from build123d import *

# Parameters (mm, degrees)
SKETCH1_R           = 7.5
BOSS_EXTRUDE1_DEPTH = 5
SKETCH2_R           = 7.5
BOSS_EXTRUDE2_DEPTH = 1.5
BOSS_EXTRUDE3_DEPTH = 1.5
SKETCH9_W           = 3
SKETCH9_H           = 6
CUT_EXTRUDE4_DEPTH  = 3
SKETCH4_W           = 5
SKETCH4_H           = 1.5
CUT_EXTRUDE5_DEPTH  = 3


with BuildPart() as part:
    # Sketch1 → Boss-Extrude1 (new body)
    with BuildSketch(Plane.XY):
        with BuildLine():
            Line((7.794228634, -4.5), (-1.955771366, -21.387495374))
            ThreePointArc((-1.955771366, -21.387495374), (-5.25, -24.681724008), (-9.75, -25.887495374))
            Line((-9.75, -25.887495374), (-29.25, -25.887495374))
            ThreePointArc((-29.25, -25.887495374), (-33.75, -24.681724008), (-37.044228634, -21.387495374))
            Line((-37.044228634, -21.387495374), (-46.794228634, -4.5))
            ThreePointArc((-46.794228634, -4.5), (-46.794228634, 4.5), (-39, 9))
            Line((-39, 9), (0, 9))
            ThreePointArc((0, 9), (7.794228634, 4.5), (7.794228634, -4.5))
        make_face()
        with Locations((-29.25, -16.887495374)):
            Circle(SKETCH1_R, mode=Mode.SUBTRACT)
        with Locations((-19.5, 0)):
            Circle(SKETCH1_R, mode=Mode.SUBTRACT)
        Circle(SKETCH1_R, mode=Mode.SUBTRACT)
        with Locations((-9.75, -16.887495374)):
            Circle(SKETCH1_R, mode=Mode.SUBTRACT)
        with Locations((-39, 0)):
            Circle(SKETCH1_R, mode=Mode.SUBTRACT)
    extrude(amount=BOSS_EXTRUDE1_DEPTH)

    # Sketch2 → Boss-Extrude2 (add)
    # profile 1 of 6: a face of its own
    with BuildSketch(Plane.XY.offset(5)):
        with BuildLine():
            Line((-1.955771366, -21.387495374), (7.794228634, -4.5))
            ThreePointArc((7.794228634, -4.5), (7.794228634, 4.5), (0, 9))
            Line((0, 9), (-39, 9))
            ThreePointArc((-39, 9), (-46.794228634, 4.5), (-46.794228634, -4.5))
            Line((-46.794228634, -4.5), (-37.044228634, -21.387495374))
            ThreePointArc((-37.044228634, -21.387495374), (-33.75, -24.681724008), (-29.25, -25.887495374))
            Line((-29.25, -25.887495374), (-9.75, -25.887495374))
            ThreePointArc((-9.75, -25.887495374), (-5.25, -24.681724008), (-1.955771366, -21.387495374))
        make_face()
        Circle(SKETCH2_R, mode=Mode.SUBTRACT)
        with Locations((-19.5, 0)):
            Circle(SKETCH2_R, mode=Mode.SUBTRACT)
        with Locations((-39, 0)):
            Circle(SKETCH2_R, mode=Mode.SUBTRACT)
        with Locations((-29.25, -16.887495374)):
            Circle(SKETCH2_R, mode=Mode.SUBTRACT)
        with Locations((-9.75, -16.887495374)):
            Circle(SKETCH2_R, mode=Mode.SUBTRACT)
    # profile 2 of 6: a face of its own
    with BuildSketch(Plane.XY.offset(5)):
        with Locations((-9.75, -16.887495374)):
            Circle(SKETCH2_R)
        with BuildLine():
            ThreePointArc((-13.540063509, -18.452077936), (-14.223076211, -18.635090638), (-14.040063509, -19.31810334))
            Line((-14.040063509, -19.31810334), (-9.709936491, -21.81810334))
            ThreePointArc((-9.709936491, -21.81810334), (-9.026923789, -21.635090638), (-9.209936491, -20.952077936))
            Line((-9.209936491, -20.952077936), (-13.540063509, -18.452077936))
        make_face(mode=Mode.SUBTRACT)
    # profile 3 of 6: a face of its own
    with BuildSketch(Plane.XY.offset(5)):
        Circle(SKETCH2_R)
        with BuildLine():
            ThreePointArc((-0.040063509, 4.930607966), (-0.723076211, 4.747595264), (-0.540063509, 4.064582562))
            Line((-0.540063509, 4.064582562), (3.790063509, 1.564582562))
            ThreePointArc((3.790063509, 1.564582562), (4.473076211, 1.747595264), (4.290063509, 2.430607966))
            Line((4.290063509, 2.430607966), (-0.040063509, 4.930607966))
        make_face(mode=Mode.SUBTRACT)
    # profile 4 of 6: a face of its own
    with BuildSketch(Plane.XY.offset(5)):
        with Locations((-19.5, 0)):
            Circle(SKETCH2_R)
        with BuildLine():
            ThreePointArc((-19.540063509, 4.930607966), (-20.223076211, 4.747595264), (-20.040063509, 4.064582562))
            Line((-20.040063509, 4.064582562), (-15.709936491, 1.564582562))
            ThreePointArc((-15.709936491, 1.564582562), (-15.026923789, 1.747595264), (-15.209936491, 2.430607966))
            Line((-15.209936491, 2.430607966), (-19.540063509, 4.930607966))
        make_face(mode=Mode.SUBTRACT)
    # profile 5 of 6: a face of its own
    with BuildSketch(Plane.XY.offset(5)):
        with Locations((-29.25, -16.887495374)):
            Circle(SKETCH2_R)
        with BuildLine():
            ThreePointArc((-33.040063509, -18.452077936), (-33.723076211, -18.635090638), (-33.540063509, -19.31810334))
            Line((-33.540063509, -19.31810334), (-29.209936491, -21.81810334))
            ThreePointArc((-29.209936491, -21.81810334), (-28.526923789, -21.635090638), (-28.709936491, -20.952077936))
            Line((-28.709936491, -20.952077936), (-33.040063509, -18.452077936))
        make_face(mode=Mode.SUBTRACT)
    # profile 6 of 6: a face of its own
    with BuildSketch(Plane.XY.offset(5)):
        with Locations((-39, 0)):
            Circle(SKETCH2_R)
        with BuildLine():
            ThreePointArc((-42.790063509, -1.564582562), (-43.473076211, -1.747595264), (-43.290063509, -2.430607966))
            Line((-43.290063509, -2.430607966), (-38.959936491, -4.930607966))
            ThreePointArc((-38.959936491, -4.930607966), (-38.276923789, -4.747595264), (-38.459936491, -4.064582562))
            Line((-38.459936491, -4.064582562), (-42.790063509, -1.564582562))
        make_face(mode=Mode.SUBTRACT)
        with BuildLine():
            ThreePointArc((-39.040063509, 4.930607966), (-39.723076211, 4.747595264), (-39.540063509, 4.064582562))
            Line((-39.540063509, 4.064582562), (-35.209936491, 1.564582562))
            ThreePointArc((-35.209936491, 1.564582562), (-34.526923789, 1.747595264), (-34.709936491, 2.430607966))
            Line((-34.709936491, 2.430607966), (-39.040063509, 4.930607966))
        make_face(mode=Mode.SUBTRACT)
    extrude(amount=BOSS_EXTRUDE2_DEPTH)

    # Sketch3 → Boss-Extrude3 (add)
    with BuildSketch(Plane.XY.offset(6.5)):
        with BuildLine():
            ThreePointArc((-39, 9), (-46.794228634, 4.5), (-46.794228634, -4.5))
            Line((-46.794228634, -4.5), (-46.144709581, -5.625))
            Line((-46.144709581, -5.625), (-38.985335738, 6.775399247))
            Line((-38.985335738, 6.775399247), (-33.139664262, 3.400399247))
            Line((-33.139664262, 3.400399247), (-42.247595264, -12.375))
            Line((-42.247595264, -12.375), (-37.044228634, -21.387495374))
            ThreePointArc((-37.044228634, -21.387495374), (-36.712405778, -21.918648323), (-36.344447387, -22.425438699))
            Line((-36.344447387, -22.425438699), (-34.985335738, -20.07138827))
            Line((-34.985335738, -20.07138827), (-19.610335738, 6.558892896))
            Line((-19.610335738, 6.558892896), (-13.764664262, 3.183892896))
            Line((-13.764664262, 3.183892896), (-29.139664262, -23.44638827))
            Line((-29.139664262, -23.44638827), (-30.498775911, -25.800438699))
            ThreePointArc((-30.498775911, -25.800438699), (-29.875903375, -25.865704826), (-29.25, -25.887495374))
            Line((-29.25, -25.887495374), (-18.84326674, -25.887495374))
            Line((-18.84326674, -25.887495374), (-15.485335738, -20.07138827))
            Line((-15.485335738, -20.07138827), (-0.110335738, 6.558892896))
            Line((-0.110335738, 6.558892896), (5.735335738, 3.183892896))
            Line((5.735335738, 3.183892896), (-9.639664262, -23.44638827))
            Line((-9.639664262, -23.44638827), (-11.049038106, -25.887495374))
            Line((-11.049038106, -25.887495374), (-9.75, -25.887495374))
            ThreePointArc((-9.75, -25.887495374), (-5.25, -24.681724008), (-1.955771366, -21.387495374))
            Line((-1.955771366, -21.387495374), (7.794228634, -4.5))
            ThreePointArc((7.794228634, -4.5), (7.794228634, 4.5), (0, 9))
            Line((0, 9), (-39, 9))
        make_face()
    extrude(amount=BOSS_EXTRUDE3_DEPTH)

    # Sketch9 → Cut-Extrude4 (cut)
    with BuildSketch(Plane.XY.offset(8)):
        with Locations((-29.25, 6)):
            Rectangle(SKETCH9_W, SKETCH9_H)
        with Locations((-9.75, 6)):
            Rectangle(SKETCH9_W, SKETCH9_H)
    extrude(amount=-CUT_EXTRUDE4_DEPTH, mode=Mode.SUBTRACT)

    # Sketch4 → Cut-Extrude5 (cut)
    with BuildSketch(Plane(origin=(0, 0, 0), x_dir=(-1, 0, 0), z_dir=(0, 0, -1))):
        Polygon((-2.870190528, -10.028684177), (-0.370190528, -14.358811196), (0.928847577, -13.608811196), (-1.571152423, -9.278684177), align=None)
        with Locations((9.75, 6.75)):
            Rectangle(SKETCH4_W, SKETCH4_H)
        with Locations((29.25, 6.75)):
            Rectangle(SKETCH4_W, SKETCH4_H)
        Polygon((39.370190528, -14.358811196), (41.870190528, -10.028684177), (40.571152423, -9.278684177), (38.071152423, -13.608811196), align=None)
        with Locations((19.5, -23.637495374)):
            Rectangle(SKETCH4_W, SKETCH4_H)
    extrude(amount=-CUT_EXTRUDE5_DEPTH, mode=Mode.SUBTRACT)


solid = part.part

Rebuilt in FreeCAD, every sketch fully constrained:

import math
import FreeCAD as App
import Part
import Sketcher
Q = App.Units.Quantity

doc = App.newDocument("Part")
body = doc.addObject("PartDesign::Body", "Body")

sketch1 = doc.addObject("Sketcher::SketchObject", "Sketch")
body.addObject(sketch1)
sketch1.AttachmentSupport = (doc.XY_Plane, [""])
sketch1.MapMode = "FlatFace"
sketch1.addGeometry(Part.LineSegment(App.Vector(-2, -21, 0), App.Vector(8, -4, 0)), False)
sketch1.addGeometry(Part.ArcOfCircle(Part.Circle(App.Vector(0, 0, 0), App.Vector(0, 0, 1), 9), math.radians(-30), math.radians(90)), False)
sketch1.addGeometry(Part.LineSegment(App.Vector(0, 9, 0), App.Vector(-39, 9, 0)), False)
sketch1.addGeometry(Part.ArcOfCircle(Part.Circle(App.Vector(-39, 0, 0), App.Vector(0, 0, 1), 9), math.radians(90), math.radians(210)), False)
sketch1.addGeometry(Part.LineSegment(App.Vector(-47, -4, 0), App.Vector(-37, -21, 0)), False)
sketch1.addGeometry(Part.ArcOfCircle(Part.Circle(App.Vector(-29, -17, 0), App.Vector(0, 0, 1), 9), math.radians(-150), math.radians(-90)), False)
sketch1.addGeometry(Part.LineSegment(App.Vector(-29, -26, 0), App.Vector(-10, -26, 0)), False)
sketch1.addGeometry(Part.ArcOfCircle(Part.Circle(App.Vector(-10, -17, 0), App.Vector(0, 0, 1), 9), math.radians(-90), math.radians(-30)), False)
sketch1.addGeometry(Part.Circle(App.Vector(-10, -17, 0), App.Vector(0, 0, 1), 8), False)
sketch1.addGeometry(Part.Circle(App.Vector(-29, -17, 0), App.Vector(0, 0, 1), 8), False)
sketch1.addGeometry(Part.Circle(App.Vector(0, 0, 0), App.Vector(0, 0, 1), 8), False)
sketch1.addGeometry(Part.Circle(App.Vector(-20, 0, 0), App.Vector(0, 0, 1), 8), False)
sketch1.addGeometry(Part.Circle(App.Vector(-39, 0, 0), App.Vector(0, 0, 1), 8), False)
sketch1.addConstraint(Sketcher.Constraint("Tangent", 0, 2, 1, 1))
sketch1.addConstraint(Sketcher.Constraint("Tangent", 1, 2, 2, 1))
sketch1.addConstraint(Sketcher.Constraint("Tangent", 2, 2, 3, 1))
sketch1.addConstraint(Sketcher.Constraint("Tangent", 3, 2, 4, 1))
sketch1.addConstraint(Sketcher.Constraint("Tangent", 4, 2, 5, 1))
sketch1.addConstraint(Sketcher.Constraint("Tangent", 5, 2, 6, 1))
sketch1.addConstraint(Sketcher.Constraint("Tangent", 6, 2, 7, 1))
sketch1.addConstraint(Sketcher.Constraint("Tangent", 7, 2, 0, 1))
sketch1.addConstraint(Sketcher.Constraint("Horizontal", 2))
sketch1.addConstraint(Sketcher.Constraint("Horizontal", 6))
sketch1.addConstraint(Sketcher.Constraint("Coincident", 1, 3, -1, 1))
sketch1.addConstraint(Sketcher.Constraint("Coincident", 10, 3, -1, 1))
sketch1.addConstraint(Sketcher.Constraint("Coincident", 8, 3, 7, 3))
sketch1.addConstraint(Sketcher.Constraint("Coincident", 9, 3, 5, 3))
sketch1.addConstraint(Sketcher.Constraint("Coincident", 12, 3, 3, 3))
sketch1.addConstraint(Sketcher.Constraint("Equal", 1, 3))
sketch1.addConstraint(Sketcher.Constraint("Equal", 3, 5))
sketch1.addConstraint(Sketcher.Constraint("Equal", 5, 7))
sketch1.addConstraint(Sketcher.Constraint("Equal", 8, 9))
sketch1.addConstraint(Sketcher.Constraint("Equal", 9, 10))
sketch1.addConstraint(Sketcher.Constraint("Equal", 10, 11))
sketch1.addConstraint(Sketcher.Constraint("Equal", 11, 12))
sketch1.addConstraint(Sketcher.Constraint("PointOnObject", 11, 3, -1))
sketch1.addConstraint(Sketcher.Constraint("Horizontal", 0, 2, 3, 2))
sketch1.addConstraint(Sketcher.Constraint("Diameter", 8, Q("15 mm")))
sketch1.addConstraint(Sketcher.Constraint("Radius", 1, Q("9 mm")))
sketch1.addConstraint(Sketcher.Constraint("DistanceX", 2, 2, 2, 1, Q("39 mm")))
sketch1.addConstraint(Sketcher.Constraint("Angle", 0, Q("60 deg")))
sketch1.addConstraint(Sketcher.Constraint("DistanceX", 6, 1, 6, 2, Q("19.5 mm")))
sketch1.addConstraint(Sketcher.Constraint("DistanceX", 11, 3, -1, 1, Q("19.5 mm")))
pad1 = doc.addObject("PartDesign::Pad", "Pad")
body.addObject(pad1)
pad1.Profile = sketch1
pad1.Length = 5

sketch2 = doc.addObject("Sketcher::SketchObject", "Sketch001")
body.addObject(sketch2)
sketch2.AttachmentSupport = (doc.XY_Plane, [""])
sketch2.MapMode = "FlatFace"
sketch2.AttachmentOffset = App.Placement(App.Vector(0, 0, 5), App.Rotation())
sketch2.addGeometry(Part.LineSegment(App.Vector(-2, -21.4, 0), App.Vector(7.8, -4.5, 0)), False)
sketch2.addGeometry(Part.ArcOfCircle(Part.Circle(App.Vector(0, 0, 0), App.Vector(0, 0, 1), 9), math.radians(-30), math.radians(90)), False)
sketch2.addGeometry(Part.LineSegment(App.Vector(0, 9, 0), App.Vector(-39, 9, 0)), False)
sketch2.addGeometry(Part.ArcOfCircle(Part.Circle(App.Vector(-39, 0, 0), App.Vector(0, 0, 1), 9), math.radians(90), math.radians(210)), False)
sketch2.addGeometry(Part.LineSegment(App.Vector(-46.8, -4.5, 0), App.Vector(-37, -21.4, 0)), False)
sketch2.addGeometry(Part.ArcOfCircle(Part.Circle(App.Vector(-29.2, -16.9, 0), App.Vector(0, 0, 1), 9), math.radians(-150), math.radians(-90)), False)
sketch2.addGeometry(Part.LineSegment(App.Vector(-29.2, -25.9, 0), App.Vector(-9.8, -25.9, 0)), False)
sketch2.addGeometry(Part.ArcOfCircle(Part.Circle(App.Vector(-9.8, -16.9, 0), App.Vector(0, 0, 1), 9), math.radians(-90), math.radians(-30)), False)
sketch2.addGeometry(Part.LineSegment(App.Vector(-33, -18.5, 0), App.Vector(-28.7, -21, 0)), False)
sketch2.addGeometry(Part.ArcOfCircle(Part.Circle(App.Vector(-29, -21.4, 0), App.Vector(0, 0, 1), 0.5), math.radians(-120), math.radians(60)), False)
sketch2.addGeometry(Part.LineSegment(App.Vector(-29.2, -21.8, 0), App.Vector(-33.5, -19.3, 0)), False)
sketch2.addGeometry(Part.ArcOfCircle(Part.Circle(App.Vector(-33.3, -18.9, 0), App.Vector(0, 0, 1), 0.5), math.radians(60), math.radians(240)), False)
sketch2.addGeometry(Part.LineSegment(App.Vector(-13.5, -18.5, 0), App.Vector(-9.2, -21, 0)), False)
sketch2.addGeometry(Part.ArcOfCircle(Part.Circle(App.Vector(-9.5, -21.4, 0), App.Vector(0, 0, 1), 0.5), math.radians(-120), math.radians(60)), False)
sketch2.addGeometry(Part.LineSegment(App.Vector(-9.7, -21.8, 0), App.Vector(-14, -19.3, 0)), False)
sketch2.addGeometry(Part.ArcOfCircle(Part.Circle(App.Vector(-13.8, -18.9, 0), App.Vector(0, 0, 1), 0.5), math.radians(60), math.radians(240)), False)
sketch2.addGeometry(Part.LineSegment(App.Vector(-39, 4.9, 0), App.Vector(-34.7, 2.4, 0)), False)
sketch2.addGeometry(Part.ArcOfCircle(Part.Circle(App.Vector(-35, 2, 0), App.Vector(0, 0, 1), 0.5), math.radians(-120), math.radians(60)), False)
sketch2.addGeometry(Part.LineSegment(App.Vector(-35.2, 1.6, 0), App.Vector(-39.5, 4.1, 0)), False)
sketch2.addGeometry(Part.ArcOfCircle(Part.Circle(App.Vector(-39.3, 4.5, 0), App.Vector(0, 0, 1), 0.5), math.radians(60), math.radians(240)), False)
sketch2.addGeometry(Part.ArcOfCircle(Part.Circle(App.Vector(-43, -2, 0), App.Vector(0, 0, 1), 0.5), math.radians(60), math.radians(240)), False)
sketch2.addGeometry(Part.LineSegment(App.Vector(-42.8, -1.6, 0), App.Vector(-38.5, -4.1, 0)), False)
sketch2.addGeometry(Part.ArcOfCircle(Part.Circle(App.Vector(-38.7, -4.5, 0), App.Vector(0, 0, 1), 0.5), math.radians(-120), math.radians(60)), False)
sketch2.addGeometry(Part.LineSegment(App.Vector(-39, -4.9, 0), App.Vector(-43.3, -2.4, 0)), False)
sketch2.addGeometry(Part.LineSegment(App.Vector(-19.5, 4.9, 0), App.Vector(-15.2, 2.4, 0)), False)
sketch2.addGeometry(Part.ArcOfCircle(Part.Circle(App.Vector(-15.5, 2, 0), App.Vector(0, 0, 1), 0.5), math.radians(-120), math.radians(60)), False)
sketch2.addGeometry(Part.LineSegment(App.Vector(-15.7, 1.6, 0), App.Vector(-20, 4.1, 0)), False)
sketch2.addGeometry(Part.ArcOfCircle(Part.Circle(App.Vector(-19.8, 4.5, 0), App.Vector(0, 0, 1), 0.5), math.radians(60), math.radians(240)), False)
sketch2.addGeometry(Part.LineSegment(App.Vector(0, 4.9, 0), App.Vector(4.3, 2.4, 0)), False)
sketch2.addGeometry(Part.ArcOfCircle(Part.Circle(App.Vector(4, 2, 0), App.Vector(0, 0, 1), 0.5), math.radians(-120), math.radians(60)), False)
sketch2.addGeometry(Part.LineSegment(App.Vector(3.8, 1.6, 0), App.Vector(-0.5, 4.1, 0)), False)
sketch2.addGeometry(Part.ArcOfCircle(Part.Circle(App.Vector(-0.3, 4.5, 0), App.Vector(0, 0, 1), 0.5), math.radians(60), math.radians(240)), False)
sketch2.addConstraint(Sketcher.Constraint("Tangent", 0, 2, 1, 1))
sketch2.addConstraint(Sketcher.Constraint("Tangent", 1, 2, 2, 1))
sketch2.addConstraint(Sketcher.Constraint("Tangent", 2, 2, 3, 1))
sketch2.addConstraint(Sketcher.Constraint("Tangent", 3, 2, 4, 1))
sketch2.addConstraint(Sketcher.Constraint("Tangent", 4, 2, 5, 1))
sketch2.addConstraint(Sketcher.Constraint("Tangent", 5, 2, 6, 1))
sketch2.addConstraint(Sketcher.Constraint("Tangent", 6, 2, 7, 1))
sketch2.addConstraint(Sketcher.Constraint("Tangent", 7, 2, 0, 1))
sketch2.addConstraint(Sketcher.Constraint("Tangent", 8, 2, 9, 2))
sketch2.addConstraint(Sketcher.Constraint("Tangent", 9, 1, 10, 1))
sketch2.addConstraint(Sketcher.Constraint("Tangent", 10, 2, 11, 2))
sketch2.addConstraint(Sketcher.Constraint("Tangent", 11, 1, 8, 1))
sketch2.addConstraint(Sketcher.Constraint("Tangent", 12, 2, 13, 2))
sketch2.addConstraint(Sketcher.Constraint("Tangent", 13, 1, 14, 1))
sketch2.addConstraint(Sketcher.Constraint("Tangent", 14, 2, 15, 2))
sketch2.addConstraint(Sketcher.Constraint("Tangent", 15, 1, 12, 1))
sketch2.addConstraint(Sketcher.Constraint("Tangent", 16, 2, 17, 2))
sketch2.addConstraint(Sketcher.Constraint("Tangent", 17, 1, 18, 1))
sketch2.addConstraint(Sketcher.Constraint("Tangent", 18, 2, 19, 2))
sketch2.addConstraint(Sketcher.Constraint("Tangent", 19, 1, 16, 1))
sketch2.addConstraint(Sketcher.Constraint("Tangent", 20, 1, 21, 1))
sketch2.addConstraint(Sketcher.Constraint("Tangent", 21, 2, 22, 2))
sketch2.addConstraint(Sketcher.Constraint("Tangent", 22, 1, 23, 1))
sketch2.addConstraint(Sketcher.Constraint("Tangent", 23, 2, 20, 2))
sketch2.addConstraint(Sketcher.Constraint("Tangent", 24, 2, 25, 2))
sketch2.addConstraint(Sketcher.Constraint("Tangent", 25, 1, 26, 1))
sketch2.addConstraint(Sketcher.Constraint("Tangent", 26, 2, 27, 2))
sketch2.addConstraint(Sketcher.Constraint("Tangent", 27, 1, 24, 1))
sketch2.addConstraint(Sketcher.Constraint("Tangent", 28, 2, 29, 2))
sketch2.addConstraint(Sketcher.Constraint("Tangent", 29, 1, 30, 1))
sketch2.addConstraint(Sketcher.Constraint("Tangent", 30, 2, 31, 2))
sketch2.addConstraint(Sketcher.Constraint("Tangent", 31, 1, 28, 1))
sketch2.addConstraint(Sketcher.Constraint("Horizontal", 2))
sketch2.addConstraint(Sketcher.Constraint("Horizontal", 6))
sketch2.addConstraint(Sketcher.Constraint("Coincident", 1, 3, -1, 1))
sketch2.addConstraint(Sketcher.Constraint("Equal", 1, 3))
sketch2.addConstraint(Sketcher.Constraint("Equal", 3, 5))
sketch2.addConstraint(Sketcher.Constraint("Equal", 5, 7))
sketch2.addConstraint(Sketcher.Constraint("Equal", 9, 11))
sketch2.addConstraint(Sketcher.Constraint("Equal", 11, 13))
sketch2.addConstraint(Sketcher.Constraint("Equal", 13, 15))
sketch2.addConstraint(Sketcher.Constraint("Equal", 15, 17))
sketch2.addConstraint(Sketcher.Constraint("Equal", 17, 19))
sketch2.addConstraint(Sketcher.Constraint("Equal", 19, 20))
sketch2.addConstraint(Sketcher.Constraint("Equal", 20, 22))
sketch2.addConstraint(Sketcher.Constraint("Equal", 22, 25))
sketch2.addConstraint(Sketcher.Constraint("Equal", 25, 27))
sketch2.addConstraint(Sketcher.Constraint("Equal", 27, 29))
sketch2.addConstraint(Sketcher.Constraint("Equal", 29, 31))
sketch2.addConstraint(Sketcher.Constraint("Perpendicular", 0, 8))
sketch2.addConstraint(Sketcher.Constraint("Parallel", 10, 12))
sketch2.addConstraint(Sketcher.Constraint("Parallel", 14, 16))
sketch2.addConstraint(Sketcher.Constraint("Parallel", 18, 21))
sketch2.addConstraint(Sketcher.Constraint("Parallel", 23, 24))
sketch2.addConstraint(Sketcher.Constraint("Parallel", 26, 28))
sketch2.addConstraint(Sketcher.Constraint("Horizontal", 9, 3, 13, 3))
sketch2.addConstraint(Sketcher.Constraint("Horizontal", 11, 3, 15, 3))
sketch2.addConstraint(Sketcher.Constraint("Horizontal", 17, 3, 25, 3))
sketch2.addConstraint(Sketcher.Constraint("Horizontal", 19, 3, 27, 3))
sketch2.addConstraint(Sketcher.Constraint("Horizontal", 25, 3, 29, 3))
sketch2.addConstraint(Sketcher.Constraint("Horizontal", 27, 3, 31, 3))
sketch2.addConstraint(Sketcher.Constraint("Horizontal", 0, 2, 3, 2))
sketch2.addConstraint(Sketcher.Constraint("Equal", 14, 16))
sketch2.addConstraint(Sketcher.Constraint("Equal", 18, 21))
sketch2.addConstraint(Sketcher.Constraint("Radius", 1, Q("9 mm")))
sketch2.addConstraint(Sketcher.Constraint("Radius", 9, Q("0.5 mm")))
sketch2.addConstraint(Sketcher.Constraint("DistanceX", 2, 2, 2, 1, Q("39 mm")))
sketch2.addConstraint(Sketcher.Constraint("Angle", 0, Q("60 deg")))
sketch2.addConstraint(Sketcher.Constraint("Distance", 8, Q("5 mm")))
sketch2.addConstraint(Sketcher.Constraint("DistanceX", 6, 1, 6, 2, Q("19.5 mm")))
sketch2.addConstraint(Sketcher.Constraint("DistanceX", 17, 3, 9, 3, Q("6 mm")))
sketch2.addConstraint(Sketcher.Constraint("DistanceX", 22, 3, 16, 2, Q("4 mm")))
sketch2.addConstraint(Sketcher.Constraint("DistanceX", 9, 3, 13, 3, Q("19.5 mm")))
sketch2.addConstraint(Sketcher.Constraint("DistanceX", 17, 3, 25, 3, Q("19.5 mm")))
sketch2.addConstraint(Sketcher.Constraint("DistanceX", 25, 3, 29, 3, Q("19.5 mm")))
sketch2.addConstraint(Sketcher.Constraint("DistanceY", 5, 3, 20, 3, Q("14.8899 mm")))
sketch2.addConstraint(Sketcher.Constraint("DistanceY", 9, 3, -1, 1, Q("21.385091 mm")))
sketch2.addConstraint(Sketcher.Constraint("DistanceY", 5, 3, 17, 3, Q("18.885091 mm")))
sketch2.addConstraint(Sketcher.Constraint("DistanceX", 9, 3, -1, 1, Q("28.959936 mm")))
pad2 = doc.addObject("PartDesign::Pad", "Pad001")
body.addObject(pad2)
pad2.Profile = sketch2
pad2.Length = 1.5

sketch3 = doc.addObject("Sketcher::SketchObject", "Sketch002")
body.addObject(sketch3)
sketch3.AttachmentSupport = (doc.XY_Plane, [""])
sketch3.MapMode = "FlatFace"
sketch3.AttachmentOffset = App.Placement(App.Vector(0, 0, 6.5), App.Rotation())
sketch3.addGeometry(Part.ArcOfCircle(Part.Circle(App.Vector(-39, 0, 0), App.Vector(0, 0, 1), 9), math.radians(90), math.radians(210)), False)
sketch3.addGeometry(Part.LineSegment(App.Vector(-46.8, -4.5, 0), App.Vector(-46.1, -5.6, 0)), False)
sketch3.addGeometry(Part.LineSegment(App.Vector(-46.1, -5.6, 0), App.Vector(-39, 6.8, 0)), False)
sketch3.addGeometry(Part.LineSegment(App.Vector(-39, 6.8, 0), App.Vector(-33.1, 3.4, 0)), False)
sketch3.addGeometry(Part.LineSegment(App.Vector(-33.1, 3.4, 0), App.Vector(-42.2, -12.4, 0)), False)
sketch3.addGeometry(Part.LineSegment(App.Vector(-42.2, -12.4, 0), App.Vector(-37, -21.4, 0)), False)
sketch3.addGeometry(Part.ArcOfCircle(Part.Circle(App.Vector(-29.2, -16.9, 0), App.Vector(0, 0, 1), 9), math.radians(-150), math.radians(-142.02)), False)
sketch3.addGeometry(Part.LineSegment(App.Vector(-36.3, -22.4, 0), App.Vector(-35, -20.1, 0)), False)
sketch3.addGeometry(Part.LineSegment(App.Vector(-35, -20.1, 0), App.Vector(-19.6, 6.6, 0)), False)
sketch3.addGeometry(Part.LineSegment(App.Vector(-19.6, 6.6, 0), App.Vector(-13.8, 3.2, 0)), False)
sketch3.addGeometry(Part.LineSegment(App.Vector(-13.8, 3.2, 0), App.Vector(-29.1, -23.4, 0)), False)
sketch3.addGeometry(Part.LineSegment(App.Vector(-29.1, -23.4, 0), App.Vector(-30.5, -25.8, 0)), False)
sketch3.addGeometry(Part.ArcOfCircle(Part.Circle(App.Vector(-29.3, -16.9, 0), App.Vector(0, 0, 1), 9), math.radians(-97.98), math.radians(-90)), False)
sketch3.addGeometry(Part.LineSegment(App.Vector(-29.2, -25.9, 0), App.Vector(-18.8, -25.9, 0)), False)
sketch3.addGeometry(Part.LineSegment(App.Vector(-18.8, -25.9, 0), App.Vector(-15.5, -20.1, 0)), False)
sketch3.addGeometry(Part.LineSegment(App.Vector(-15.5, -20.1, 0), App.Vector(-0.1, 6.6, 0)), False)
sketch3.addGeometry(Part.LineSegment(App.Vector(-0.1, 6.6, 0), App.Vector(5.7, 3.2, 0)), False)
sketch3.addGeometry(Part.LineSegment(App.Vector(5.7, 3.2, 0), App.Vector(-9.6, -23.4, 0)), False)
sketch3.addGeometry(Part.LineSegment(App.Vector(-9.6, -23.4, 0), App.Vector(-11, -25.9, 0)), False)
sketch3.addGeometry(Part.LineSegment(App.Vector(-11, -25.9, 0), App.Vector(-9.8, -25.9, 0)), False)
sketch3.addGeometry(Part.ArcOfCircle(Part.Circle(App.Vector(-9.8, -16.9, 0), App.Vector(0, 0, 1), 9), math.radians(-90), math.radians(-30)), False)
sketch3.addGeometry(Part.LineSegment(App.Vector(-2, -21.4, 0), App.Vector(7.8, -4.5, 0)), False)
sketch3.addGeometry(Part.ArcOfCircle(Part.Circle(App.Vector(0, 0, 0), App.Vector(0, 0, 1), 9), math.radians(-30), math.radians(90)), False)
sketch3.addGeometry(Part.LineSegment(App.Vector(0, 9, 0), App.Vector(-39, 9, 0)), False)
sketch3.addConstraint(Sketcher.Constraint("Tangent", 0, 2, 1, 1))
sketch3.addConstraint(Sketcher.Constraint("Coincident", 1, 2, 2, 1))
sketch3.addConstraint(Sketcher.Constraint("Coincident", 2, 2, 3, 1))
sketch3.addConstraint(Sketcher.Constraint("Coincident", 3, 2, 4, 1))
sketch3.addConstraint(Sketcher.Constraint("Coincident", 4, 2, 5, 1))
sketch3.addConstraint(Sketcher.Constraint("Tangent", 5, 2, 6, 1))
sketch3.addConstraint(Sketcher.Constraint("Coincident", 6, 2, 7, 1))
sketch3.addConstraint(Sketcher.Constraint("Coincident", 7, 2, 8, 1))
sketch3.addConstraint(Sketcher.Constraint("Coincident", 8, 2, 9, 1))
sketch3.addConstraint(Sketcher.Constraint("Coincident", 9, 2, 10, 1))
sketch3.addConstraint(Sketcher.Constraint("Coincident", 10, 2, 11, 1))
sketch3.addConstraint(Sketcher.Constraint("Coincident", 11, 2, 12, 1))
sketch3.addConstraint(Sketcher.Constraint("Tangent", 12, 2, 13, 1))
sketch3.addConstraint(Sketcher.Constraint("Coincident", 13, 2, 14, 1))
sketch3.addConstraint(Sketcher.Constraint("Coincident", 14, 2, 15, 1))
sketch3.addConstraint(Sketcher.Constraint("Coincident", 15, 2, 16, 1))
sketch3.addConstraint(Sketcher.Constraint("Coincident", 16, 2, 17, 1))
sketch3.addConstraint(Sketcher.Constraint("Coincident", 17, 2, 18, 1))
sketch3.addConstraint(Sketcher.Constraint("Coincident", 18, 2, 19, 1))
sketch3.addConstraint(Sketcher.Constraint("Tangent", 19, 2, 20, 1))
sketch3.addConstraint(Sketcher.Constraint("Tangent", 20, 2, 21, 1))
sketch3.addConstraint(Sketcher.Constraint("Tangent", 21, 2, 22, 1))
sketch3.addConstraint(Sketcher.Constraint("Tangent", 22, 2, 23, 1))
sketch3.addConstraint(Sketcher.Constraint("Tangent", 23, 2, 0, 1))
sketch3.addConstraint(Sketcher.Constraint("Horizontal", 13))
sketch3.addConstraint(Sketcher.Constraint("Horizontal", 19))
sketch3.addConstraint(Sketcher.Constraint("Horizontal", 23))
sketch3.addConstraint(Sketcher.Constraint("Coincident", 22, 3, -1, 1))
sketch3.addConstraint(Sketcher.Constraint("Coincident", 12, 3, 6, 3))
sketch3.addConstraint(Sketcher.Constraint("Equal", 0, 6))
sketch3.addConstraint(Sketcher.Constraint("Equal", 6, 12))
sketch3.addConstraint(Sketcher.Constraint("Equal", 12, 20))
sketch3.addConstraint(Sketcher.Constraint("Equal", 20, 22))
sketch3.addConstraint(Sketcher.Constraint("Perpendicular", 2, 3))
sketch3.addConstraint(Sketcher.Constraint("Perpendicular", 3, 4))
sketch3.addConstraint(Sketcher.Constraint("Parallel", 1, 5))
sketch3.addConstraint(Sketcher.Constraint("Parallel", 4, 7))
sketch3.addConstraint(Sketcher.Constraint("Parallel", 7, 8))
sketch3.addConstraint(Sketcher.Constraint("Perpendicular", 8, 9))
sketch3.addConstraint(Sketcher.Constraint("Perpendicular", 9, 10))
sketch3.addConstraint(Sketcher.Constraint("Parallel", 10, 11))
sketch3.addConstraint(Sketcher.Constraint("Parallel", 11, 14))
sketch3.addConstraint(Sketcher.Constraint("Parallel", 14, 15))
sketch3.addConstraint(Sketcher.Constraint("Perpendicular", 15, 16))
sketch3.addConstraint(Sketcher.Constraint("Perpendicular", 16, 17))
sketch3.addConstraint(Sketcher.Constraint("Parallel", 17, 18))
sketch3.addConstraint(Sketcher.Constraint("Parallel", 18, 21))
sketch3.addConstraint(Sketcher.Constraint("Horizontal", 12, 3, 20, 3))
sketch3.addConstraint(Sketcher.Constraint("Horizontal", 7, 2, 14, 2))
sketch3.addConstraint(Sketcher.Constraint("Horizontal", 8, 2, 15, 2))
sketch3.addConstraint(Sketcher.Constraint("Horizontal", 9, 2, 16, 2))
sketch3.addConstraint(Sketcher.Constraint("Horizontal", 10, 2, 17, 2))
sketch3.addConstraint(Sketcher.Constraint("Horizontal", 5, 2, 20, 2))
sketch3.addConstraint(Sketcher.Constraint("Equal", 3, 9))
sketch3.addConstraint(Sketcher.Constraint("Equal", 8, 10))
sketch3.addConstraint(Sketcher.Constraint("Equal", 7, 11))
sketch3.addConstraint(Sketcher.Constraint("Radius", 0, Q("9 mm")))
sketch3.addConstraint(Sketcher.Constraint("DistanceX", 23, 2, 23, 1, Q("39 mm")))
sketch3.addConstraint(Sketcher.Constraint("Angle", 1, Q("-60 deg")))
sketch3.addConstraint(Sketcher.Constraint("Distance", 21, Q("19.5 mm")))
sketch3.addConstraint(Sketcher.Constraint("DistanceX", 6, 3, 20, 3, Q("19.5 mm")))
sketch3.addConstraint(Sketcher.Constraint("DistanceX", 8, 2, 15, 2, Q("19.5 mm")))
sketch3.addConstraint(Sketcher.Constraint("Distance", 3, Q("6.75 mm")))
sketch3.addConstraint(Sketcher.Constraint("Distance", 8, Q("30.75 mm")))
sketch3.addConstraint(Sketcher.Constraint("DistanceY", 1, 2, -1, 1, Q("5.625 mm")))
sketch3.addConstraint(Sketcher.Constraint("DistanceX", 2, 2, 8, 2, Q("19.375 mm")))
sketch3.addConstraint(Sketcher.Constraint("DistanceY", -1, 1, 2, 2, Q("6.775399 mm")))
pad3 = doc.addObject("PartDesign::Pad", "Pad002")
body.addObject(pad3)
pad3.Profile = sketch3
pad3.Length = 1.5

sketch4 = doc.addObject("Sketcher::SketchObject", "Sketch003")
body.addObject(sketch4)
sketch4.AttachmentSupport = (doc.XY_Plane, [""])
sketch4.MapMode = "FlatFace"
sketch4.AttachmentOffset = App.Placement(App.Vector(0, 0, 8), App.Rotation())
sketch4.addGeometry(Part.LineSegment(App.Vector(-30.8, 9, 0), App.Vector(-30.8, 3, 0)), False)
sketch4.addGeometry(Part.LineSegment(App.Vector(-30.8, 3, 0), App.Vector(-27.8, 3, 0)), False)
sketch4.addGeometry(Part.LineSegment(App.Vector(-27.8, 3, 0), App.Vector(-27.8, 9, 0)), False)
sketch4.addGeometry(Part.LineSegment(App.Vector(-27.8, 9, 0), App.Vector(-30.8, 9, 0)), False)
sketch4.addGeometry(Part.LineSegment(App.Vector(-11.2, 9, 0), App.Vector(-11.2, 3, 0)), False)
sketch4.addGeometry(Part.LineSegment(App.Vector(-11.2, 3, 0), App.Vector(-8.2, 3, 0)), False)
sketch4.addGeometry(Part.LineSegment(App.Vector(-8.2, 3, 0), App.Vector(-8.2, 9, 0)), False)
sketch4.addGeometry(Part.LineSegment(App.Vector(-8.2, 9, 0), App.Vector(-11.2, 9, 0)), False)
sketch4.addConstraint(Sketcher.Constraint("Coincident", 0, 2, 1, 1))
sketch4.addConstraint(Sketcher.Constraint("Coincident", 1, 2, 2, 1))
sketch4.addConstraint(Sketcher.Constraint("Coincident", 2, 2, 3, 1))
sketch4.addConstraint(Sketcher.Constraint("Coincident", 3, 2, 0, 1))
sketch4.addConstraint(Sketcher.Constraint("Coincident", 4, 2, 5, 1))
sketch4.addConstraint(Sketcher.Constraint("Coincident", 5, 2, 6, 1))
sketch4.addConstraint(Sketcher.Constraint("Coincident", 6, 2, 7, 1))
sketch4.addConstraint(Sketcher.Constraint("Coincident", 7, 2, 4, 1))
sketch4.addConstraint(Sketcher.Constraint("Vertical", 0))
sketch4.addConstraint(Sketcher.Constraint("Horizontal", 1))
sketch4.addConstraint(Sketcher.Constraint("Vertical", 2))
sketch4.addConstraint(Sketcher.Constraint("Horizontal", 3))
sketch4.addConstraint(Sketcher.Constraint("Vertical", 4))
sketch4.addConstraint(Sketcher.Constraint("Horizontal", 5))
sketch4.addConstraint(Sketcher.Constraint("Vertical", 6))
sketch4.addConstraint(Sketcher.Constraint("Horizontal", 7))
sketch4.addConstraint(Sketcher.Constraint("Horizontal", 1, 2, 4, 2))
sketch4.addConstraint(Sketcher.Constraint("Horizontal", 3, 2, 6, 2))
sketch4.addConstraint(Sketcher.Constraint("Equal", 3, 5))
sketch4.addConstraint(Sketcher.Constraint("DistanceX", 1, 1, 1, 2, Q("3 mm")))
sketch4.addConstraint(Sketcher.Constraint("DistanceY", 0, 2, 0, 1, Q("6 mm")))
sketch4.addConstraint(Sketcher.Constraint("DistanceY", -1, 1, 0, 2, Q("3 mm")))
sketch4.addConstraint(Sketcher.Constraint("DistanceX", 1, 2, 4, 2, Q("16.5 mm")))
sketch4.addConstraint(Sketcher.Constraint("DistanceX", 0, 2, -1, 1, Q("30.75 mm")))
pocket1 = doc.addObject("PartDesign::Pocket", "Pocket")
body.addObject(pocket1)
pocket1.Profile = sketch4
pocket1.Length = 3

sketch5 = doc.addObject("Sketcher::SketchObject", "Sketch004")
body.addObject(sketch5)
sketch5.AttachmentSupport = (doc.XY_Plane, [""])
sketch5.MapMode = "FlatFace"
sketch5.addGeometry(Part.LineSegment(App.Vector(2.9, -10, 0), App.Vector(0.4, -14.4, 0)), False)
sketch5.addGeometry(Part.LineSegment(App.Vector(0.4, -14.4, 0), App.Vector(-0.9, -13.6, 0)), False)
sketch5.addGeometry(Part.LineSegment(App.Vector(-0.9, -13.6, 0), App.Vector(1.6, -9.3, 0)), False)
sketch5.addGeometry(Part.LineSegment(App.Vector(1.6, -9.3, 0), App.Vector(2.9, -10, 0)), False)
sketch5.addGeometry(Part.LineSegment(App.Vector(-7.2, 7.5, 0), App.Vector(-7.2, 6, 0)), False)
sketch5.addGeometry(Part.LineSegment(App.Vector(-7.2, 6, 0), App.Vector(-12.2, 6, 0)), False)
sketch5.addGeometry(Part.LineSegment(App.Vector(-12.2, 6, 0), App.Vector(-12.2, 7.5, 0)), False)
sketch5.addGeometry(Part.LineSegment(App.Vector(-12.2, 7.5, 0), App.Vector(-7.2, 7.5, 0)), False)
sketch5.addGeometry(Part.LineSegment(App.Vector(-26.8, 7.5, 0), App.Vector(-26.8, 6, 0)), False)
sketch5.addGeometry(Part.LineSegment(App.Vector(-26.8, 6, 0), App.Vector(-31.8, 6, 0)), False)
sketch5.addGeometry(Part.LineSegment(App.Vector(-31.8, 6, 0), App.Vector(-31.8, 7.5, 0)), False)
sketch5.addGeometry(Part.LineSegment(App.Vector(-31.8, 7.5, 0), App.Vector(-26.8, 7.5, 0)), False)
sketch5.addGeometry(Part.LineSegment(App.Vector(-39.4, -14.4, 0), App.Vector(-41.9, -10, 0)), False)
sketch5.addGeometry(Part.LineSegment(App.Vector(-41.9, -10, 0), App.Vector(-40.6, -9.3, 0)), False)
sketch5.addGeometry(Part.LineSegment(App.Vector(-40.6, -9.3, 0), App.Vector(-38.1, -13.6, 0)), False)
sketch5.addGeometry(Part.LineSegment(App.Vector(-38.1, -13.6, 0), App.Vector(-39.4, -14.4, 0)), False)
sketch5.addGeometry(Part.LineSegment(App.Vector(-17, -22.9, 0), App.Vector(-17, -24.4, 0)), False)
sketch5.addGeometry(Part.LineSegment(App.Vector(-17, -24.4, 0), App.Vector(-22, -24.4, 0)), False)
sketch5.addGeometry(Part.LineSegment(App.Vector(-22, -24.4, 0), App.Vector(-22, -22.9, 0)), False)
sketch5.addGeometry(Part.LineSegment(App.Vector(-22, -22.9, 0), App.Vector(-17, -22.9, 0)), False)
sketch5.addConstraint(Sketcher.Constraint("Coincident", 0, 2, 1, 1))
sketch5.addConstraint(Sketcher.Constraint("Coincident", 1, 2, 2, 1))
sketch5.addConstraint(Sketcher.Constraint("Coincident", 2, 2, 3, 1))
sketch5.addConstraint(Sketcher.Constraint("Coincident", 3, 2, 0, 1))
sketch5.addConstraint(Sketcher.Constraint("Coincident", 4, 2, 5, 1))
sketch5.addConstraint(Sketcher.Constraint("Coincident", 5, 2, 6, 1))
sketch5.addConstraint(Sketcher.Constraint("Coincident", 6, 2, 7, 1))
sketch5.addConstraint(Sketcher.Constraint("Coincident", 7, 2, 4, 1))
sketch5.addConstraint(Sketcher.Constraint("Coincident", 8, 2, 9, 1))
sketch5.addConstraint(Sketcher.Constraint("Coincident", 9, 2, 10, 1))
sketch5.addConstraint(Sketcher.Constraint("Coincident", 10, 2, 11, 1))
sketch5.addConstraint(Sketcher.Constraint("Coincident", 11, 2, 8, 1))
sketch5.addConstraint(Sketcher.Constraint("Coincident", 12, 2, 13, 1))
sketch5.addConstraint(Sketcher.Constraint("Coincident", 13, 2, 14, 1))
sketch5.addConstraint(Sketcher.Constraint("Coincident", 14, 2, 15, 1))
sketch5.addConstraint(Sketcher.Constraint("Coincident", 15, 2, 12, 1))
sketch5.addConstraint(Sketcher.Constraint("Coincident", 16, 2, 17, 1))
sketch5.addConstraint(Sketcher.Constraint("Coincident", 17, 2, 18, 1))
sketch5.addConstraint(Sketcher.Constraint("Coincident", 18, 2, 19, 1))
sketch5.addConstraint(Sketcher.Constraint("Coincident", 19, 2, 16, 1))
sketch5.addConstraint(Sketcher.Constraint("Vertical", 4))
sketch5.addConstraint(Sketcher.Constraint("Horizontal", 5))
sketch5.addConstraint(Sketcher.Constraint("Vertical", 6))
sketch5.addConstraint(Sketcher.Constraint("Horizontal", 7))
sketch5.addConstraint(Sketcher.Constraint("Vertical", 8))
sketch5.addConstraint(Sketcher.Constraint("Horizontal", 9))
sketch5.addConstraint(Sketcher.Constraint("Vertical", 10))
sketch5.addConstraint(Sketcher.Constraint("Horizontal", 11))
sketch5.addConstraint(Sketcher.Constraint("Vertical", 16))
sketch5.addConstraint(Sketcher.Constraint("Horizontal", 17))
sketch5.addConstraint(Sketcher.Constraint("Vertical", 18))
sketch5.addConstraint(Sketcher.Constraint("Horizontal", 19))
sketch5.addConstraint(Sketcher.Constraint("Perpendicular", 0, 1))
sketch5.addConstraint(Sketcher.Constraint("Perpendicular", 1, 2))
sketch5.addConstraint(Sketcher.Constraint("Perpendicular", 2, 3))
sketch5.addConstraint(Sketcher.Constraint("Perpendicular", 12, 13))
sketch5.addConstraint(Sketcher.Constraint("Perpendicular", 13, 14))
sketch5.addConstraint(Sketcher.Constraint("Perpendicular", 14, 15))
sketch5.addConstraint(Sketcher.Constraint("Horizontal", 5, 2, 8, 2))
sketch5.addConstraint(Sketcher.Constraint("Horizontal", 7, 2, 10, 2))
sketch5.addConstraint(Sketcher.Constraint("Horizontal", 3, 2, 12, 2))
sketch5.addConstraint(Sketcher.Constraint("Horizontal", 2, 2, 13, 2))
sketch5.addConstraint(Sketcher.Constraint("Horizontal", 1, 2, 14, 2))
sketch5.addConstraint(Sketcher.Constraint("Equal", 7, 9))
sketch5.addConstraint(Sketcher.Constraint("Equal", 11, 17))
sketch5.addConstraint(Sketcher.Constraint("Equal", 10, 16))
sketch5.addConstraint(Sketcher.Constraint("Equal", 2, 12))
sketch5.addConstraint(Sketcher.Constraint("DistanceX", 5, 2, 5, 1, Q("5 mm")))
sketch5.addConstraint(Sketcher.Constraint("Angle", 0, Q("-120 deg")))
sketch5.addConstraint(Sketcher.Constraint("Distance", 0, Q("5 mm")))
sketch5.addConstraint(Sketcher.Constraint("DistanceY", 4, 2, 4, 1, Q("1.5 mm")))
sketch5.addConstraint(Sketcher.Constraint("DistanceY", -1, 1, 4, 2, Q("6 mm")))
sketch5.addConstraint(Sketcher.Constraint("DistanceX", 16, 2, -1, 1, Q("17 mm")))
sketch5.addConstraint(Sketcher.Constraint("Distance", 1, Q("1.5 mm")))
sketch5.addConstraint(Sketcher.Constraint("DistanceX", 8, 2, 5, 2, Q("14.5 mm")))
sketch5.addConstraint(Sketcher.Constraint("DistanceX", 4, 2, -1, 1, Q("7.25 mm")))
sketch5.addConstraint(Sketcher.Constraint("DistanceX", -1, 1, 0, 2, Q("0.370191 mm")))
sketch5.addConstraint(Sketcher.Constraint("DistanceY", 0, 2, -1, 1, Q("14.358811 mm")))
sketch5.addConstraint(Sketcher.Constraint("DistanceX", 12, 2, -1, 1, Q("41.870191 mm")))
sketch5.addConstraint(Sketcher.Constraint("DistanceY", 16, 2, 2, 2, Q("15.108811 mm")))
pocket2 = doc.addObject("PartDesign::Pocket", "Pocket001")
body.addObject(pocket2)
pocket2.Profile = sketch5
pocket2.Length = 3
pocket2.Reversed = True

doc.recompute()
